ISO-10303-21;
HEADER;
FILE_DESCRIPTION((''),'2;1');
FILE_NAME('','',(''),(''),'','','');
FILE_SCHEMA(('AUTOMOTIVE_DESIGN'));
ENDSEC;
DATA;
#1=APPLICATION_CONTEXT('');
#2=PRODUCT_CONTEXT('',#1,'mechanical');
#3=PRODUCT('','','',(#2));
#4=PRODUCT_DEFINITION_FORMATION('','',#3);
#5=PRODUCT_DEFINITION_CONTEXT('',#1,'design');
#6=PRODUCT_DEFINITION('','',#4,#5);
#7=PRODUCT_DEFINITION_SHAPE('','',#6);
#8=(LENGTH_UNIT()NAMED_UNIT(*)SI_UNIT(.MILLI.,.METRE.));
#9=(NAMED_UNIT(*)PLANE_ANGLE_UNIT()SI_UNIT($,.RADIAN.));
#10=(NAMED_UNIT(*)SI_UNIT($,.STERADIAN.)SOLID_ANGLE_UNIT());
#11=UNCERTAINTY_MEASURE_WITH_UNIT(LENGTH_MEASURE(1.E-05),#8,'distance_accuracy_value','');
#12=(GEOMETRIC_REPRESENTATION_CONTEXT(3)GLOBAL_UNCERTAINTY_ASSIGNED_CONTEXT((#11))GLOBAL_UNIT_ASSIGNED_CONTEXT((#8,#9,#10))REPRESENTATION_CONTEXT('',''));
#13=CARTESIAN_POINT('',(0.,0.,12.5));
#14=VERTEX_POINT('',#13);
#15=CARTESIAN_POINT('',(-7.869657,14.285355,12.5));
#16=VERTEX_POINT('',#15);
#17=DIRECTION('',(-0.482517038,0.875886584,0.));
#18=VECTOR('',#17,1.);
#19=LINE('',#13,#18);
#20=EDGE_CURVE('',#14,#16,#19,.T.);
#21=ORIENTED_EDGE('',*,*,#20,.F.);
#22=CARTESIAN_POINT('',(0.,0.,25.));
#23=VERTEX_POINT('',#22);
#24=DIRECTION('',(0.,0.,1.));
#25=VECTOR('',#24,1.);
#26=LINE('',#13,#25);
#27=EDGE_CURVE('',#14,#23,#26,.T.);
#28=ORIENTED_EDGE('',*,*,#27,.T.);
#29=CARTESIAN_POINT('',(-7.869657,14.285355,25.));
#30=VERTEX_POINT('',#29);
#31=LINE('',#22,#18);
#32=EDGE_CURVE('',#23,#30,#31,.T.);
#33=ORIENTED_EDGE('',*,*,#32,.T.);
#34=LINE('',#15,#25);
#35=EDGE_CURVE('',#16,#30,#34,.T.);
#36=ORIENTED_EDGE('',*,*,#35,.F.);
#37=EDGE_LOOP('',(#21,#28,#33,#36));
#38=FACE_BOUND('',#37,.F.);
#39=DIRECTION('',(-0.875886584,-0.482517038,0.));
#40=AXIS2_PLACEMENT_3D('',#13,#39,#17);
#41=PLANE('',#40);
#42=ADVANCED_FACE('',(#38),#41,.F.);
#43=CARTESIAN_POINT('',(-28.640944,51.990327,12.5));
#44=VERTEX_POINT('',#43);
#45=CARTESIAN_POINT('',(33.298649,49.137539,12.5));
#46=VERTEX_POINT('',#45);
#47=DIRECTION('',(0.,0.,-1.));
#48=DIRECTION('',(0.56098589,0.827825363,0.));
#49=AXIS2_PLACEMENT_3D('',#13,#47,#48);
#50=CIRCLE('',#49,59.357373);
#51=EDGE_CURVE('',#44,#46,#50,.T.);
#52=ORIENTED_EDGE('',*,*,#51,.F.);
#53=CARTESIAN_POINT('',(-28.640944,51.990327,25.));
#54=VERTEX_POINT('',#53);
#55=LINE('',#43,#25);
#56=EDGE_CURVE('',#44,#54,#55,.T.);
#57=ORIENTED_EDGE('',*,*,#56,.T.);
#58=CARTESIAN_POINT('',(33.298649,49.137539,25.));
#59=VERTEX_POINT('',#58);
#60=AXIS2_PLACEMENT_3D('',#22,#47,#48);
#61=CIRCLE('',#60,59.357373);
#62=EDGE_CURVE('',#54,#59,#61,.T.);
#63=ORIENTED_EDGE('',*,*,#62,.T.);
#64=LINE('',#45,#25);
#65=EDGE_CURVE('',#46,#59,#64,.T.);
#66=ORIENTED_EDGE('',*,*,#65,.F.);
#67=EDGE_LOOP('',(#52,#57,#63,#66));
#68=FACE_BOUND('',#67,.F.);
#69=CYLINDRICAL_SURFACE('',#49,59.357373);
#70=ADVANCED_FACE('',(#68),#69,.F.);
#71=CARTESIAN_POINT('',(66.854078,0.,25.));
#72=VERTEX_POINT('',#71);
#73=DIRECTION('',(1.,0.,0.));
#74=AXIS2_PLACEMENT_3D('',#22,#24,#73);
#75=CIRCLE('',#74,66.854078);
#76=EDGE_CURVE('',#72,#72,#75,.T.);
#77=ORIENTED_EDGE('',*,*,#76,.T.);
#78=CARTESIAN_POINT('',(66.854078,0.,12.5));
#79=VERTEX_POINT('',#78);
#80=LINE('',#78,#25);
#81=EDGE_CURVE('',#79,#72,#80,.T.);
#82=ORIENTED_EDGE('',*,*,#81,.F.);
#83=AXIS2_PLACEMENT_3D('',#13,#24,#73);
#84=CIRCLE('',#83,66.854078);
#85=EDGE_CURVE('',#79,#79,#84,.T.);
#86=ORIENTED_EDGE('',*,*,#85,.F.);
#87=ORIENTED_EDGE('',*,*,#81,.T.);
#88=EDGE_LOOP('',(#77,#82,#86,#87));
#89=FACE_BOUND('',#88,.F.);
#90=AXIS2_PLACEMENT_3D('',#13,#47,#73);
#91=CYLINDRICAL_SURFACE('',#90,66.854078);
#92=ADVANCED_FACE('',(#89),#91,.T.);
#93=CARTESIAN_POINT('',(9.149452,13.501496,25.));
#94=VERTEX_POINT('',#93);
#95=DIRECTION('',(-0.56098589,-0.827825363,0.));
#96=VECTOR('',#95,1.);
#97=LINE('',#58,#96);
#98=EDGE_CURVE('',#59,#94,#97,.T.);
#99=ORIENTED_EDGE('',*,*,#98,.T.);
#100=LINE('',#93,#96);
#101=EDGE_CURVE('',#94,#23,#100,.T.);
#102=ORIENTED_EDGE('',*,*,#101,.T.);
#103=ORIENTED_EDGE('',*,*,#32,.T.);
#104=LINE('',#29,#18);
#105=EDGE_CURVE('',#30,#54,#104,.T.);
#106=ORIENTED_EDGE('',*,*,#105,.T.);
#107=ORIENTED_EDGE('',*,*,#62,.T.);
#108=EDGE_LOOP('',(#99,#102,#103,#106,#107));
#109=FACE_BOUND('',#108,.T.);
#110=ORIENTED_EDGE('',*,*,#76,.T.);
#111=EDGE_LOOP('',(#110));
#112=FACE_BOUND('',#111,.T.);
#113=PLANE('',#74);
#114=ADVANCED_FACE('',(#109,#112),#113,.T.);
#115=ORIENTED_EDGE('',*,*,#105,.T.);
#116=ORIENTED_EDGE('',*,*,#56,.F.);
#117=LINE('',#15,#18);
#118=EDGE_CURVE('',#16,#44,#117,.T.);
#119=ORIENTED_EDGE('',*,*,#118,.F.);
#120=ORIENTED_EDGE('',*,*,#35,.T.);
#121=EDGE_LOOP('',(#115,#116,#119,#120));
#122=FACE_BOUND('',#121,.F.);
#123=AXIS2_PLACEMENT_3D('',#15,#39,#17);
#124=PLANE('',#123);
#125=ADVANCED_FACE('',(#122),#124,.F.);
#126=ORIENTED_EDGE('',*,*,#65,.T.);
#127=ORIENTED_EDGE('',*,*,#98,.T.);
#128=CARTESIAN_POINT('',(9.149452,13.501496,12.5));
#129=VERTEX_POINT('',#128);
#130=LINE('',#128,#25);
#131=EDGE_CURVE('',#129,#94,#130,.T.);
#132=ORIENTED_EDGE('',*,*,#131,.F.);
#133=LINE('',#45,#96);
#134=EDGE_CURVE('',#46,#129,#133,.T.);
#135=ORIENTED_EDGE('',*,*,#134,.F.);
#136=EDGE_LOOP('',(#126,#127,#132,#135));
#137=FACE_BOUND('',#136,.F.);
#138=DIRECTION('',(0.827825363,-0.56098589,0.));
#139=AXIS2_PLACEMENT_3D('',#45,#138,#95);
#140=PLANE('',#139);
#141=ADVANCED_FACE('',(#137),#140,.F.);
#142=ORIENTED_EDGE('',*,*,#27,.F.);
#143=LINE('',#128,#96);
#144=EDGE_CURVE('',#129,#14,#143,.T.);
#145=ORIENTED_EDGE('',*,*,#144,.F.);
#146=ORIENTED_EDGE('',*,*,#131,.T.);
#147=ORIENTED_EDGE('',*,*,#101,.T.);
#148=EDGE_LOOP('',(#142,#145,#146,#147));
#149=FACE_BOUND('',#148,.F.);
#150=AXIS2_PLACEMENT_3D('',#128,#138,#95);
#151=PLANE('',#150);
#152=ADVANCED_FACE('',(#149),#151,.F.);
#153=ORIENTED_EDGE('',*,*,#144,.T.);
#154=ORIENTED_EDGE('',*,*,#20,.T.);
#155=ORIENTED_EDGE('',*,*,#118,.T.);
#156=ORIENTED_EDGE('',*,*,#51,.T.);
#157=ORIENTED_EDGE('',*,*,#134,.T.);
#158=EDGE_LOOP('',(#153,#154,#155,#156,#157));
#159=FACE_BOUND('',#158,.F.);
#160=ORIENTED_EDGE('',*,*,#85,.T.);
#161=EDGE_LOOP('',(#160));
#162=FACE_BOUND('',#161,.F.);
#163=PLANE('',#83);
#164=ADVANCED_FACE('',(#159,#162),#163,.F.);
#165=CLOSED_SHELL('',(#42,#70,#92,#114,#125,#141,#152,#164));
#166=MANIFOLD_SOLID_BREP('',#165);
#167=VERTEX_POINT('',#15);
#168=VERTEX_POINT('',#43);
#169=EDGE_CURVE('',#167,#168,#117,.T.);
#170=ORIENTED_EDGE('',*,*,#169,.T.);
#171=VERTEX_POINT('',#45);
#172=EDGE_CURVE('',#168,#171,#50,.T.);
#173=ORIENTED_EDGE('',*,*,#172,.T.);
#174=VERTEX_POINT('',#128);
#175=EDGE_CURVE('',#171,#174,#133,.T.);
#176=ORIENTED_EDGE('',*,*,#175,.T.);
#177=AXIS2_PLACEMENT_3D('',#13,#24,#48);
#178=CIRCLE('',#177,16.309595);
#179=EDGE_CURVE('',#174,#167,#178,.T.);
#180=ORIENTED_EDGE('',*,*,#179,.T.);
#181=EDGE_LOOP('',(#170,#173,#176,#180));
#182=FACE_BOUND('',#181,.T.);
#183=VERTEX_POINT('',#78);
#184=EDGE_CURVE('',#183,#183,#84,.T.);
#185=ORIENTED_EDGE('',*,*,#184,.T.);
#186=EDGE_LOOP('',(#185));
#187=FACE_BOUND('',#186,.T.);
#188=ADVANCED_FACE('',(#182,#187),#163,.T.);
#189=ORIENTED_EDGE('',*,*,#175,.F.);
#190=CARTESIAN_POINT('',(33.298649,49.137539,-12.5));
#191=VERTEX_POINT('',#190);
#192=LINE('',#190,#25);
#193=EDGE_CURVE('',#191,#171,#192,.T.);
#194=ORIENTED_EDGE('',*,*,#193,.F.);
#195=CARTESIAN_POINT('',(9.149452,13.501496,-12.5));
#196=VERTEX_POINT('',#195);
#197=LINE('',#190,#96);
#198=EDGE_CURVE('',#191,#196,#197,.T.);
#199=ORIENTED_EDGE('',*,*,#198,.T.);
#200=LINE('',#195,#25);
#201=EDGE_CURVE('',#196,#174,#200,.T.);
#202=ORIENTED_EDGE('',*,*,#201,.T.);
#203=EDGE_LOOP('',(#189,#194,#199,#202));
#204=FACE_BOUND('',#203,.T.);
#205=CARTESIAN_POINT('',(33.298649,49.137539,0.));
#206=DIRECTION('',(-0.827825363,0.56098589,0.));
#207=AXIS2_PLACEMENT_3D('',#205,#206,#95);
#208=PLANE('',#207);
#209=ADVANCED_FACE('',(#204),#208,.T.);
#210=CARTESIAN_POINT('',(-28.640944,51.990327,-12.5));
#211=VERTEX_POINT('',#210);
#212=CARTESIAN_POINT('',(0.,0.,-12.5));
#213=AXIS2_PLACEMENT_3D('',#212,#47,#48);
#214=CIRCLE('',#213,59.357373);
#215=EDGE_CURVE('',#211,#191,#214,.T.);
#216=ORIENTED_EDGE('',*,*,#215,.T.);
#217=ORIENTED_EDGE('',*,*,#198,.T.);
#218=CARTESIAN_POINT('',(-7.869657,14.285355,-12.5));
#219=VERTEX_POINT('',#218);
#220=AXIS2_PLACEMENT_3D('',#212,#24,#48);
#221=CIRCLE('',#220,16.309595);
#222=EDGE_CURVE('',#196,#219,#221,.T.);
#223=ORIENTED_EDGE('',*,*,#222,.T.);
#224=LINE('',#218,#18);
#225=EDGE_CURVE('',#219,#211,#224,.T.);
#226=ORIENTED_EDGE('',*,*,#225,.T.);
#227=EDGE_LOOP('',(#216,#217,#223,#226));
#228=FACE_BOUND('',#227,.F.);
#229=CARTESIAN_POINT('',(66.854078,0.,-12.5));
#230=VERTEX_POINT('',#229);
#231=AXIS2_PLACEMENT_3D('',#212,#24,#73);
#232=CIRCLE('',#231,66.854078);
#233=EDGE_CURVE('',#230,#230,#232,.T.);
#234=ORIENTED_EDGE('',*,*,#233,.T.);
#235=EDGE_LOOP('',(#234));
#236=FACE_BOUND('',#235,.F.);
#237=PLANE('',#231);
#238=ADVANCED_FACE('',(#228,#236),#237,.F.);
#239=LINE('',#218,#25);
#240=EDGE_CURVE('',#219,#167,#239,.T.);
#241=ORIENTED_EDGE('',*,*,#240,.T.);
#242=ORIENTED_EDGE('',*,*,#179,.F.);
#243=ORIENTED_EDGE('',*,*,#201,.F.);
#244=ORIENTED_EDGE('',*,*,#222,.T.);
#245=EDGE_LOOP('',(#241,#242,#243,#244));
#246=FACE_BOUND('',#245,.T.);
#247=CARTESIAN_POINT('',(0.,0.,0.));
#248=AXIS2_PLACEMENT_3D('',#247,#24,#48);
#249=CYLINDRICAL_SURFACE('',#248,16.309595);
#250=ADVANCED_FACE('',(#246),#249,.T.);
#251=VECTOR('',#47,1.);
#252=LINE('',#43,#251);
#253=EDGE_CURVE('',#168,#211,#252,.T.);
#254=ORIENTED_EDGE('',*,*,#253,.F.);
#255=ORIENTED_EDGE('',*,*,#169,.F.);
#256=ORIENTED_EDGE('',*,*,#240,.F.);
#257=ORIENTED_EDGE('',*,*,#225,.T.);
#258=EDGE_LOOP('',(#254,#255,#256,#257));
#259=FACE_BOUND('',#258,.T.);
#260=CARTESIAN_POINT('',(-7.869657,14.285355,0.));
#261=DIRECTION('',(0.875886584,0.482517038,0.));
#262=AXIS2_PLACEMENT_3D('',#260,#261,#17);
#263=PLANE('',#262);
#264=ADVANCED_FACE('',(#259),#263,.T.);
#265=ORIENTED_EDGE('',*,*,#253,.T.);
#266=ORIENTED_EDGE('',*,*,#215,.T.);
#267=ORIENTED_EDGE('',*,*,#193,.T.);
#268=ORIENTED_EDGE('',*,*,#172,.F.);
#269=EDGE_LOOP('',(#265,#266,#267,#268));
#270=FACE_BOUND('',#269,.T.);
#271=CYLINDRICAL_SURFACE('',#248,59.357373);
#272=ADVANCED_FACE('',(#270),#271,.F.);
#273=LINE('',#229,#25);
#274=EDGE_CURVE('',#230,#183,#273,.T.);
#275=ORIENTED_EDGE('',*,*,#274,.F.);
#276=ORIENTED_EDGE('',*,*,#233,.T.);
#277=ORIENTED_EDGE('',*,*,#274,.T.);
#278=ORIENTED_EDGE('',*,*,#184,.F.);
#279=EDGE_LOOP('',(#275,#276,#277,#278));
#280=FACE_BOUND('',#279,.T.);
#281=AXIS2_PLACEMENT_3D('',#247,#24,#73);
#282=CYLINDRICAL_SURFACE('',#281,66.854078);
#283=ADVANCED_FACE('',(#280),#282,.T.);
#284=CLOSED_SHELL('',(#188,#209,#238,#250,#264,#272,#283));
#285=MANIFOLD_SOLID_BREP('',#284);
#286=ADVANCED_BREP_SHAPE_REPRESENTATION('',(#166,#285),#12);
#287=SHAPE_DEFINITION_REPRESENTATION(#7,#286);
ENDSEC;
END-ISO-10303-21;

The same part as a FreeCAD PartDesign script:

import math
import FreeCAD as App
import Part
import Sketcher

V = App.Vector

doc = App.newDocument("Part")
body = doc.addObject("PartDesign::Body", "Body")

# Sketch on XY plane
sketch1 = body.newObject("Sketcher::SketchObject", "Sketch")
sketch1.AttachmentSupport = (doc.getObject("XY_Plane"), [""])
sketch1.MapMode = "FlatFace"
sketch1.addGeometry([
    Part.Circle(V(0, 0, 0), V(0, 0, 1), 67),  # 0
    Part.ArcOfCircle(Part.Circle(V(0, 0, 0), V(0, 0, 1), 59), math.radians(56), math.radians(119)),  # 1
    Part.LineSegment(V(33, 49, 0), V(9, 14, 0)),  # 2
    Part.ArcOfCircle(Part.Circle(V(0, 0, 0), V(0, 0, 1), 16), math.radians(56), math.radians(119)),  # 3
    Part.LineSegment(V(-8, 14, 0), V(-29, 52, 0)),  # 4
], False)
sketch1.addConstraint([
    Sketcher.Constraint("Coincident", 1, 1, 2, 1),
    Sketcher.Constraint("Coincident", 2, 2, 3, 1),
    Sketcher.Constraint("Coincident", 3, 2, 4, 1),
    Sketcher.Constraint("Coincident", 4, 2, 1, 2),
    Sketcher.Constraint("Coincident", 0, 3, -1, 1),
    Sketcher.Constraint("Coincident", 1, 3, -1, 1),
    Sketcher.Constraint("Coincident", 3, 3, -1, 1),
    Sketcher.Constraint("Diameter", 0, 133.708157),
    Sketcher.Constraint("Radius", 1, 59.357373),
    Sketcher.Constraint("Radius", 3, 16.309595),
    Sketcher.Constraint("DistanceX", -1, 1, 1, 1, 33.298649),
    Sketcher.Constraint("DistanceX", 3, 2, 2, 2, 17.01911),
    Sketcher.Constraint("DistanceY", 2, 2, 3, 2, 0.783859),
    Sketcher.Constraint("DistanceY", 3, 2, 4, 2, 37.704972),
])
pad1 = body.newObject("PartDesign::Pad", "Pad")
pad1.Profile = sketch1
pad1.Length = 25
pad1.Midplane = True
body2 = doc.addObject("PartDesign::Body", "Body001")

# Sketch on XY plane
sketch2 = body2.newObject("Sketcher::SketchObject", "Sketch001")
sketch2.AttachmentSupport = (doc.getObject("XY_Plane001"), [""])
sketch2.MapMode = "FlatFace"
sketch2.AttachmentOffset = App.Placement(V(0, 0, 12.5), App.Rotation())
sketch2.addGeometry([
    Part.Circle(V(0, 0, 0), V(0, 0, 1), 67),  # 0
    Part.ArcOfCircle(Part.Circle(V(0, 0, 0), V(0, 0, 1), 59), math.radians(56), math.radians(119)),  # 1
    Part.LineSegment(V(33, 49, 0), V(9, 14, 0)),  # 2
    Part.LineSegment(V(9, 14, 0), V(0, 0, 0)),  # 3
    Part.LineSegment(V(0, 0, 0), V(-8, 14, 0)),  # 4
    Part.LineSegment(V(-8, 14, 0), V(-29, 52, 0)),  # 5
], False)
sketch2.addConstraint([
    Sketcher.Constraint("Coincident", 1, 1, 2, 1),
    Sketcher.Constraint("Coincident", 2, 2, 3, 1),
    Sketcher.Constraint("Coincident", 3, 2, 4, 1),
    Sketcher.Constraint("Coincident", 4, 2, 5, 1),
    Sketcher.Constraint("Coincident", 5, 2, 1, 2),
    Sketcher.Constraint("Coincident", 0, 3, -1, 1),
    Sketcher.Constraint("Coincident", 1, 3, -1, 1),
    Sketcher.Constraint("Coincident", 3, 2, -1, 1),
    Sketcher.Constraint("Parallel", 2, 3),
    Sketcher.Constraint("Parallel", 4, 5),
    Sketcher.Constraint("Equal", 3, 4),
    Sketcher.Constraint("Diameter", 0, 133.708157),
    Sketcher.Constraint("Radius", 1, 59.357373),
    Sketcher.Constraint("Distance", 2, 43.047779),
    Sketcher.Constraint("DistanceX", -1, 1, 1, 1, 33.298649),
    Sketcher.Constraint("DistanceX", 4, 2, 2, 2, 17.01911),
])
pad2 = body2.newObject("PartDesign::Pad", "Pad001")
pad2.Profile = sketch2
pad2.Length = 12.5

doc.recompute()
